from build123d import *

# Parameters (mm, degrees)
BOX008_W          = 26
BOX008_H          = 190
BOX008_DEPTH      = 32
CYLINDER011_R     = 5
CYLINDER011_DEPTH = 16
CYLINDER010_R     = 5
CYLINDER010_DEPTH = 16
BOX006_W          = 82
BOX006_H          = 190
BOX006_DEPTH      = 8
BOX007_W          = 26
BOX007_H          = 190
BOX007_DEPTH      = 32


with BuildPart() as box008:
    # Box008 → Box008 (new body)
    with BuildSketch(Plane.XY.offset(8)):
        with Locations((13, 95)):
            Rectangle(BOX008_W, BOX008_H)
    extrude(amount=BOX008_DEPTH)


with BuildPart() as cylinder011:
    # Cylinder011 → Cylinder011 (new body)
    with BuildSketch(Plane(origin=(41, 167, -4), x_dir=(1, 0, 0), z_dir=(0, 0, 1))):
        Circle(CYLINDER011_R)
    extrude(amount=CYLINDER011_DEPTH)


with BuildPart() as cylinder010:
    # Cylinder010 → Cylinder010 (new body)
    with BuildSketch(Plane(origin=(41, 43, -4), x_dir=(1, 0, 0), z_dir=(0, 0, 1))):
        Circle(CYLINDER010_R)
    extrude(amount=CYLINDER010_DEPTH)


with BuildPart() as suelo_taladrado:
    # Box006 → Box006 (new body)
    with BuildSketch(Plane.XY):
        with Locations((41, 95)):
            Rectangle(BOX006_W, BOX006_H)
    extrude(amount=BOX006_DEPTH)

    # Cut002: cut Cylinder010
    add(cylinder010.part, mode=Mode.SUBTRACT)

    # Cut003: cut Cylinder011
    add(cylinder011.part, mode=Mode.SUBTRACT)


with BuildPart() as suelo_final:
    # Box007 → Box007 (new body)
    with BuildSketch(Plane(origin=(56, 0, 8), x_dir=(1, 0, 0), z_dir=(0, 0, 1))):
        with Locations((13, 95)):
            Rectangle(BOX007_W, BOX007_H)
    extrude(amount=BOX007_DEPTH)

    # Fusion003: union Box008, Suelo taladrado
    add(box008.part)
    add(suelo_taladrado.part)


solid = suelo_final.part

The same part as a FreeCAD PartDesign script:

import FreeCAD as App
import Part
import Sketcher
Q = App.Units.Quantity


def add_polygon(sketch, points):
    """Adds a closed chain of lines whose ends are joined by coincident constraints."""
    first, n = sketch.GeometryCount, len(points)
    for a, b in zip(points, points[1:] + points[:1]):
        sketch.addGeometry(Part.LineSegment(App.Vector(*a, 0), App.Vector(*b, 0)), False)
    for i in range(n):
        sketch.addConstraint(Sketcher.Constraint("Coincident", first + i, 2, first + (i + 1) % n, 1))

doc = App.newDocument("Part")
body = doc.addObject("PartDesign::Body", "Body")

# Sketch on XY plane
sketch1 = body.newObject("Sketcher::SketchObject", "Sketch")
sketch1.AttachmentSupport = (doc.getObject("XY_Plane"), [""])
sketch1.MapMode = "FlatFace"
sketch1.AttachmentOffset = App.Placement(App.Vector(0, 0, 8), App.Rotation())
add_polygon(sketch1, [(0, 190), (0, 0), (26, 0), (26, 190)])  # lines 0-3
sketch1.addConstraint([
    Sketcher.Constraint("Vertical", 0),
    Sketcher.Constraint("Horizontal", 1),
    Sketcher.Constraint("Vertical", 2),
    Sketcher.Constraint("Horizontal", 3),
    Sketcher.Constraint("Coincident", 0, 2, -1, 1),
    Sketcher.Constraint("DistanceX", 1, 1, 1, 2, Q("26 mm")),
    Sketcher.Constraint("DistanceY", 0, 2, 0, 1, Q("190 mm")),
])
pad1 = body.newObject("PartDesign::Pad", "Pad")
pad1.Profile = sketch1
pad1.Length = 32
body2 = doc.addObject("PartDesign::Body", "Body001")

# Sketch on XY plane
sketch2 = body2.newObject("Sketcher::SketchObject", "Sketch001")
sketch2.AttachmentSupport = (doc.getObject("XY_Plane001"), [""])
sketch2.MapMode = "FlatFace"
sketch2.AttachmentOffset = App.Placement(App.Vector(0, 0, -4), App.Rotation())
sketch2.addGeometry(Part.Circle(App.Vector(41, 167, 0), App.Vector(0, 0, 1), 5), False)
sketch2.addConstraint([
    Sketcher.Constraint("Diameter", 0, Q("10 mm")),
    Sketcher.Constraint("DistanceX", -1, 1, 0, 3, Q("41 mm")),
    Sketcher.Constraint("DistanceY", -1, 1, 0, 3, Q("167 mm")),
])
pad2 = body2.newObject("PartDesign::Pad", "Pad001")
pad2.Profile = sketch2
pad2.Length = 16
body3 = doc.addObject("PartDesign::Body", "Body002")

# Sketch on XY plane
sketch3 = body3.newObject("Sketcher::SketchObject", "Sketch002")
sketch3.AttachmentSupport = (doc.getObject("XY_Plane002"), [""])
sketch3.MapMode = "FlatFace"
sketch3.AttachmentOffset = App.Placement(App.Vector(0, 0, -4), App.Rotation())
sketch3.addGeometry(Part.Circle(App.Vector(41, 43, 0), App.Vector(0, 0, 1), 5), False)
sketch3.addConstraint([
    Sketcher.Constraint("Diameter", 0, Q("10 mm")),
    Sketcher.Constraint("DistanceX", -1, 1, 0, 3, Q("41 mm")),
    Sketcher.Constraint("DistanceY", -1, 1, 0, 3, Q("43 mm")),
])
pad3 = body3.newObject("PartDesign::Pad", "Pad002")
pad3.Profile = sketch3
pad3.Length = 16
body4 = doc.addObject("PartDesign::Body", "Body003")

# Sketch on XY plane
sketch4 = body4.newObject("Sketcher::SketchObject", "Sketch003")
sketch4.AttachmentSupport = (doc.getObject("XY_Plane003"), [""])
sketch4.MapMode = "FlatFace"
add_polygon(sketch4, [(0, 190), (0, 0), (82, 0), (82, 190)])  # lines 0-3
sketch4.addConstraint([
    Sketcher.Constraint("Vertical", 0),
    Sketcher.Constraint("Horizontal", 1),
    Sketcher.Constraint("Vertical", 2),
    Sketcher.Constraint("Horizontal", 3),
    Sketcher.Constraint("Coincident", 0, 2, -1, 1),
    Sketcher.Constraint("DistanceX", 1, 1, 1, 2, Q("82 mm")),
    Sketcher.Constraint("DistanceY", 0, 2, 0, 1, Q("190 mm")),
])
pad4 = body4.newObject("PartDesign::Pad", "Pad003")
pad4.Profile = sketch4
pad4.Length = 8
doc.recompute()

boolean = body4.newObject("PartDesign::Boolean", "Boolean")
boolean.Type = "Cut"
boolean.addObjects([body3])
doc.recompute()

boolean2 = body4.newObject("PartDesign::Boolean", "Boolean001")
boolean2.Type = "Cut"
boolean2.addObjects([body2])
body5 = doc.addObject("PartDesign::Body", "Body004")
body5.AllowCompound = True

# Sketch on XY plane
sketch5 = body5.newObject("Sketcher::SketchObject", "Sketch004")
sketch5.AttachmentSupport = (doc.getObject("XY_Plane004"), [""])
sketch5.MapMode = "FlatFace"
sketch5.AttachmentOffset = App.Placement(App.Vector(0, 0, 8), App.Rotation())
add_polygon(sketch5, [(56, 190), (56, 0), (82, 0), (82, 190)])  # lines 0-3
sketch5.addConstraint([
    Sketcher.Constraint("Vertical", 0),
    Sketcher.Constraint("Horizontal", 1),
    Sketcher.Constraint("Vertical", 2),
    Sketcher.Constraint("Horizontal", 3),
    Sketcher.Constraint("PointOnObject", 0, 2, -1),
    Sketcher.Constraint("DistanceX", 1, 1, 1, 2, Q("26 mm")),
    Sketcher.Constraint("DistanceY", 0, 2, 0, 1, Q("190 mm")),
    Sketcher.Constraint("DistanceX", -1, 1, 0, 2, Q("56 mm")),
])
pad5 = body5.newObject("PartDesign::Pad", "Pad004")
pad5.Profile = sketch5
pad5.Length = 32
doc.recompute()

boolean3 = body5.newObject("PartDesign::Boolean", "Boolean002")
boolean3.Type = "Fuse"
boolean3.addObjects([body])
doc.recompute()

boolean4 = body5.newObject("PartDesign::Boolean", "Boolean003")
boolean4.Type = "Fuse"
boolean4.addObjects([body4])

doc.recompute()
